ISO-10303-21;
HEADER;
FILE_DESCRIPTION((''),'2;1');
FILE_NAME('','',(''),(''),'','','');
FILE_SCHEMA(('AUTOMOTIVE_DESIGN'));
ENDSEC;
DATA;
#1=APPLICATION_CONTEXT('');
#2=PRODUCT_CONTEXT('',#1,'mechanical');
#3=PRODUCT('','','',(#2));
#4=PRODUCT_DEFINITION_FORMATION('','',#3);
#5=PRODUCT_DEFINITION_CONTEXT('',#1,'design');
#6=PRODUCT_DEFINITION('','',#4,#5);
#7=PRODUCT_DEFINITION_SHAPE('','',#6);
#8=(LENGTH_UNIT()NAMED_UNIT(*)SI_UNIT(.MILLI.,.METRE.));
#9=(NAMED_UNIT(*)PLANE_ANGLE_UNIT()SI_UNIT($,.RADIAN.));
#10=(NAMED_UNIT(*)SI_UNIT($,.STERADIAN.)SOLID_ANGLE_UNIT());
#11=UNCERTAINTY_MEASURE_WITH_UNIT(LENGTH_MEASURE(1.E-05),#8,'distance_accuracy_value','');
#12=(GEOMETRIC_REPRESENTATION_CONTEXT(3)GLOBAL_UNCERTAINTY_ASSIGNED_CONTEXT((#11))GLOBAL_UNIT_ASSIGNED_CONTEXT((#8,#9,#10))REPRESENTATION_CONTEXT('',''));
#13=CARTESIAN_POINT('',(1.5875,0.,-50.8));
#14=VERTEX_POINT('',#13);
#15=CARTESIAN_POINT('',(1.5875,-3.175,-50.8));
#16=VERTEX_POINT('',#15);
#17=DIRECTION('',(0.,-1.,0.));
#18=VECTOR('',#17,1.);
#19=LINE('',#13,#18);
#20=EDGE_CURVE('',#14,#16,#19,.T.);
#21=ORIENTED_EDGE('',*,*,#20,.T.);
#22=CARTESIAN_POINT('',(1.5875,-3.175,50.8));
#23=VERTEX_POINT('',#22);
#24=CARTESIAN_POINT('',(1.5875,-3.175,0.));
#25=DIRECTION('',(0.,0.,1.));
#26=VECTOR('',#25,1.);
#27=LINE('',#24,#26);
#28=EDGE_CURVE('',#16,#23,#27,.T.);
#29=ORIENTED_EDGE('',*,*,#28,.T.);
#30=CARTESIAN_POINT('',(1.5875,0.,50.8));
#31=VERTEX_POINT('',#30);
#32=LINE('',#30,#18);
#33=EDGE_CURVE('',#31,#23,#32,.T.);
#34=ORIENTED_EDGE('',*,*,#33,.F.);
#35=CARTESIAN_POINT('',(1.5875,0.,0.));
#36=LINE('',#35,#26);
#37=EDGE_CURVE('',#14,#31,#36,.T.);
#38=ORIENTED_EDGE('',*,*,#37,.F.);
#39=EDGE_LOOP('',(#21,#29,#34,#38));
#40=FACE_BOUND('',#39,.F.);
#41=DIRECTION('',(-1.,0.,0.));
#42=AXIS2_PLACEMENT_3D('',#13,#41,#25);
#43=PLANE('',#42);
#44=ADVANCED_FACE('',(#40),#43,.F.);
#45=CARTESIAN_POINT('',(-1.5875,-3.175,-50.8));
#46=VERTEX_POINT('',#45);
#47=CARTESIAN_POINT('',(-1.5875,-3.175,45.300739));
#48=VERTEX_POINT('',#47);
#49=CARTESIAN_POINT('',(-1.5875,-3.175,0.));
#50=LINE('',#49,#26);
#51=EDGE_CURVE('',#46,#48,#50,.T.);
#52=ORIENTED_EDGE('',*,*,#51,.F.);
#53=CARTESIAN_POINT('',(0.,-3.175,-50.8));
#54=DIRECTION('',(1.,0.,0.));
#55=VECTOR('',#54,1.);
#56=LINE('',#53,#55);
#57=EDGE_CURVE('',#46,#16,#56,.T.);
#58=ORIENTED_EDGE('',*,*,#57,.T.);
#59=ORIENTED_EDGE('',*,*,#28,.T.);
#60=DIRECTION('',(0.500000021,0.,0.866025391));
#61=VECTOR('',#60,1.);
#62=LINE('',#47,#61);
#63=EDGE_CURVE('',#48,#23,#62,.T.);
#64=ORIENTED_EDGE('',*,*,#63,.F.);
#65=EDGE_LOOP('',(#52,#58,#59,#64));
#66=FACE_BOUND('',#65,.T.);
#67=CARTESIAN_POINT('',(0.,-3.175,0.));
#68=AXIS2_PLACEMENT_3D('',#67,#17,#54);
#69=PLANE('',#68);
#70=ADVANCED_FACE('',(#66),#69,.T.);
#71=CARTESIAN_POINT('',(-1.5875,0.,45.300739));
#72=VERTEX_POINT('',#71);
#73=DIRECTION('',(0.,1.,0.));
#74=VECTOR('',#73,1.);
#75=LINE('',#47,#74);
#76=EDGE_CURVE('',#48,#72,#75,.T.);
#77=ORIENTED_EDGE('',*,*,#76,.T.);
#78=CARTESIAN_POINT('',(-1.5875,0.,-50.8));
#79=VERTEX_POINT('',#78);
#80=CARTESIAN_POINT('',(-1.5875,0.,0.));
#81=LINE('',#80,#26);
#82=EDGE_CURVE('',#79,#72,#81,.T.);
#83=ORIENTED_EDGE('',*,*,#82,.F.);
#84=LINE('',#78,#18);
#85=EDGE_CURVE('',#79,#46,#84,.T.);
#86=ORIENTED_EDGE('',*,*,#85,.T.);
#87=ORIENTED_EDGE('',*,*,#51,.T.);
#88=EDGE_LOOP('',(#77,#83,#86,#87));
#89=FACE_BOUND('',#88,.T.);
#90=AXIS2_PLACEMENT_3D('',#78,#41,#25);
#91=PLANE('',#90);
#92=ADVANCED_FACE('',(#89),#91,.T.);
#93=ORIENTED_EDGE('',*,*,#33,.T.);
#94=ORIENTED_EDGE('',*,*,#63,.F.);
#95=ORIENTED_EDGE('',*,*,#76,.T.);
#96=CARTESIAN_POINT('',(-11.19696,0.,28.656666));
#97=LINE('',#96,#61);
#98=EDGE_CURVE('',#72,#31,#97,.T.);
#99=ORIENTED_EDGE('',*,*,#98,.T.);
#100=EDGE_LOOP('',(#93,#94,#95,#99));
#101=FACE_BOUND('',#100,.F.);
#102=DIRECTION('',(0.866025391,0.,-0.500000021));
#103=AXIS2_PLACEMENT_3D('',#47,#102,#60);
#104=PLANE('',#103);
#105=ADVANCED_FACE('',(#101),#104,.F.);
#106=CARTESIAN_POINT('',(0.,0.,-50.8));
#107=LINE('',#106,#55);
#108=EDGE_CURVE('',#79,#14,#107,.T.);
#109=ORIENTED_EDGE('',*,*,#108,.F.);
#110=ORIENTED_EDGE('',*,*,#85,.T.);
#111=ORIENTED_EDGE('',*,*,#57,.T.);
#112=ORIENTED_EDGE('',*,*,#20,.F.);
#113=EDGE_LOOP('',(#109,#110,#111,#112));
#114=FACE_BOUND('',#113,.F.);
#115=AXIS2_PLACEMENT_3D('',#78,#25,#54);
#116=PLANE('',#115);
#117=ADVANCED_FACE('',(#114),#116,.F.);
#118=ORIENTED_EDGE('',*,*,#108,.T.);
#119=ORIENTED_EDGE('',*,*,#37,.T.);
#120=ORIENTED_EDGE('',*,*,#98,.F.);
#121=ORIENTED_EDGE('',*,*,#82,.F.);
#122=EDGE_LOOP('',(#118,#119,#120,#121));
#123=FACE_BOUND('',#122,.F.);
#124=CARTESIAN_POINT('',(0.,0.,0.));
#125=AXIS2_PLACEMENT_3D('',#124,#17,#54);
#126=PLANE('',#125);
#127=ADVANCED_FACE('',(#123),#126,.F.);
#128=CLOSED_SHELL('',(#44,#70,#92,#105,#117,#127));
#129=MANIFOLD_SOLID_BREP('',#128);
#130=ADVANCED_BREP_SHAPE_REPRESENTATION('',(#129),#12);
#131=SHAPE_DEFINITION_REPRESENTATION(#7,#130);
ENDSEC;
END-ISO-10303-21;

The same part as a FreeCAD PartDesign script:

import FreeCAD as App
import Part
import Sketcher
from FreeCAD import Vector
Q = App.Units.Quantity


def add_polygon(sketch, points):
    """Adds a closed chain of lines whose ends are joined by coincident constraints."""
    first, n = sketch.GeometryCount, len(points)
    for a, b in zip(points, points[1:] + points[:1]):
        sketch.addGeometry(Part.LineSegment(App.Vector(*a, 0), App.Vector(*b, 0)), False)
    for i in range(n):
        sketch.addConstraint(Sketcher.Constraint("Coincident", first + i, 2, first + (i + 1) % n, 1))

doc = App.newDocument("Part")
params = doc.addObject("Spreadsheet::Sheet", "Params")
for row, (alias, value) in enumerate([
    ("sketch1_height", "4 in"),
    ("sketch1_width", "0.125 in"),
    ("pad1_length", "0.125 in"),
    ("sketch2_length", "0.25 in"),
    ("pocket1_length", "1 in"),
], start=1):
    params.set(f"A{row}", alias)
    params.set(f"B{row}", "=" + value)
    params.setAlias(f"B{row}", alias)

body = doc.addObject("PartDesign::Body", "Body")

sketch1 = body.newObject("Sketcher::SketchObject", "Sketch")
sketch1.AttachmentSupport = (doc.getObject("XZ_Plane"), [""])
sketch1.MapMode = "FlatFace"
add_polygon(sketch1, [(-1.6, 50.8), (-1.6, -50.8), (1.6, -50.8), (1.6, 50.8)])
sketch1.addConstraint([
    Sketcher.Constraint("Vertical", 0),
    Sketcher.Constraint("Horizontal", 1),
    Sketcher.Constraint("Vertical", 2),
    Sketcher.Constraint("Horizontal", 3),
    Sketcher.Constraint("Symmetric", 0, 2, 2, 2, -1, 1),
    Sketcher.Constraint("DistanceY", 0, 2, 0, 1, Q("4 in")),
    Sketcher.Constraint("DistanceX", 1, 1, 1, 2, Q("0.125 in")),
])
sketch1.setExpression("Constraints[9]", "Params.sketch1_height")
sketch1.setExpression("Constraints[10]", "Params.sketch1_width")
pad1 = body.newObject("PartDesign::Pad", "Pad")
pad1.Profile = sketch1
pad1.setExpression("Length", "Params.pad1_length")

sketch2 = body.newObject("Sketcher::SketchObject", "Sketch001")
sketch2.AttachmentSupport = (doc.getObject("XZ_Plane"), [""])
sketch2.MapMode = "FlatFace"
sketch2.AttachmentOffset = App.Placement(Vector(0, 0, 0.125 * 25.4), App.Rotation())
add_polygon(sketch2, [(-1.6, 45.3), (1.6, 50.8), (-1.6, 50.8)])
sketch2.addConstraint([
    Sketcher.Constraint("Horizontal", 1),
    Sketcher.Constraint("Vertical", 2),
    Sketcher.Constraint("DistanceY", -1, 1, 0, 2, Q("2 in")),
    Sketcher.Constraint("Angle", 0, Q("59.999999 deg")),
    Sketcher.Constraint("Distance", 0, Q("0.25 in")),
    Sketcher.Constraint("DistanceX", -1, 1, 0, 2, Q("0.0625 in")),
])
sketch2.setExpression("Constraints[7]", "Params.sketch2_length")
pocket1 = body.newObject("PartDesign::Pocket", "Pocket")
pocket1.Profile = sketch2
pocket1.setExpression("Length", "Params.pocket1_length")

doc.recompute()
